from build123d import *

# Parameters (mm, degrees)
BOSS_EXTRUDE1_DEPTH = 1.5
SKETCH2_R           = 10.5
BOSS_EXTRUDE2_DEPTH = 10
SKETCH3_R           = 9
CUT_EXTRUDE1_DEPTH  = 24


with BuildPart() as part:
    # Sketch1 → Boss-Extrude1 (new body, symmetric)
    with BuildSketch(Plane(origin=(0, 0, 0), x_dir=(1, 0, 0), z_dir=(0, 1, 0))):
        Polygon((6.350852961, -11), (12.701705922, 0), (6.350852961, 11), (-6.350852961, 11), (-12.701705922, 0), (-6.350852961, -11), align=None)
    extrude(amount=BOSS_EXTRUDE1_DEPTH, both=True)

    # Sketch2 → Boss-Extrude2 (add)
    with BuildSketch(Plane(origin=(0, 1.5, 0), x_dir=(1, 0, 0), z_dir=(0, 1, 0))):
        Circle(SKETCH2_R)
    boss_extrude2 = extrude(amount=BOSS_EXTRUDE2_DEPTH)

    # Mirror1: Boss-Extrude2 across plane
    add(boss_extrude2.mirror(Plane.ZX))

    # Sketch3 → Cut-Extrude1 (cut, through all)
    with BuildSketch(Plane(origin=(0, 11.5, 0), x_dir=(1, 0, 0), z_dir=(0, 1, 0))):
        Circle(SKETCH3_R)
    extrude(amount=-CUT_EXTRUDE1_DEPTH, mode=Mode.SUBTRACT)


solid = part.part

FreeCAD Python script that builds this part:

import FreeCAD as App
import Part
import Sketcher

V = App.Vector
Q = App.Units.Quantity


def add_polygon(sketch, points):
    """Adds a closed chain of lines whose ends are joined by coincident constraints."""
    first, n = sketch.GeometryCount, len(points)
    for a, b in zip(points, points[1:] + points[:1]):
        sketch.addGeometry(Part.LineSegment(App.Vector(*a, 0), App.Vector(*b, 0)), False)
    for i in range(n):
        sketch.addConstraint(Sketcher.Constraint("Coincident", first + i, 2, first + (i + 1) % n, 1))

doc = App.newDocument("Part")
params = doc.addObject("Spreadsheet::Sheet", "Params")
for row, (alias, value) in enumerate([
    ("pad1_length", "3 mm"),
    ("sketch2_diameter", "21 mm"),
    ("pad2_length", "10 mm"),
    ("sketch3_diameter", "18 mm"),
], start=1):
    params.set(f"A{row}", alias)
    params.set(f"B{row}", "=" + value)
    params.setAlias(f"B{row}", alias)

body = doc.addObject("PartDesign::Body", "Body")

# Sketch on XZ plane
sketch1 = body.newObject("Sketcher::SketchObject", "Sketch")
sketch1.AttachmentSupport = (doc.getObject("XZ_Plane"), [""])
sketch1.MapMode = "FlatFace"
add_polygon(sketch1, [(6.350853, 11), (12.701706, 0), (6.350853, -11), (-6.350853, -11), (-12.701706, 0), (-6.350853, 11)])  # lines 0-5
sketch1.addConstraint(Sketcher.Constraint("Horizontal", 2))
sketch1.addConstraint(Sketcher.Constraint("Horizontal", 5))
sketch1.addConstraint(Sketcher.Constraint("Symmetric", 0, 2, 3, 2, -1, 1))
sketch1.addConstraint(Sketcher.Constraint("Symmetric", 1, 2, 4, 2, -1, 1))
sketch1.addConstraint(Sketcher.Constraint("PointOnObject", 0, 2, -1))
sketch1.addConstraint(Sketcher.Constraint("Parallel", 0, 3))
sketch1.addConstraint(Sketcher.Constraint("Vertical", 2, 2, 4, 2))
sketch1.addConstraint(Sketcher.Constraint("Angle", 0, Q("-60 deg")))
sketch1.addConstraint(Sketcher.Constraint("DistanceY", 1, 2, -1, 1, 11.0))
sketch1.addConstraint(Sketcher.Constraint("DistanceX", 2, 2, 2, 1, 12.701706))
pad1 = body.newObject("PartDesign::Pad", "Pad")
pad1.Profile = sketch1
pad1.setExpression("Length", "Params.pad1_length")
pad1.Midplane = True

# Sketch on XZ plane
sketch2 = body.newObject("Sketcher::SketchObject", "Sketch001")
sketch2.AttachmentSupport = (doc.getObject("XZ_Plane"), [""])
sketch2.MapMode = "FlatFace"
sketch2.AttachmentOffset = App.Placement(V(0, 0, -1.5), App.Rotation())
sketch2.addGeometry(Part.Circle(V(0, 0, 0), V(0, 0, 1), 10.5), False)
sketch2.addConstraint(Sketcher.Constraint("Coincident", 0, 3, -1, 1))
sketch2.addConstraint(Sketcher.Constraint("Diameter", 0, 21.0))
sketch2.setExpression("Constraints[1]", "Params.sketch2_diameter")
pad2 = body.newObject("PartDesign::Pad", "Pad001")
pad2.Profile = sketch2
pad2.setExpression("Length", "Params.pad2_length")
pad2.Reversed = True
doc.recompute()

mirrored = body.newObject("PartDesign::Mirrored", "Mirrored")
mirrored.Originals = [pad2]
mirrored.MirrorPlane = (doc.getObject("XZ_Plane"), [""])
body.Tip = mirrored

# Sketch on XZ plane
sketch3 = body.newObject("Sketcher::SketchObject", "Sketch002")
sketch3.AttachmentSupport = (doc.getObject("XZ_Plane"), [""])
sketch3.MapMode = "FlatFace"
sketch3.AttachmentOffset = App.Placement(V(0, 0, -11.5), App.Rotation())
sketch3.addGeometry(Part.Circle(V(0, 0, 0), V(0, 0, 1), 9), False)
sketch3.addConstraint(Sketcher.Constraint("Coincident", 0, 3, -1, 1))
sketch3.addConstraint(Sketcher.Constraint("Diameter", 0, 18.0))
sketch3.setExpression("Constraints[1]", "Params.sketch3_diameter")
pocket1 = body.newObject("PartDesign::Pocket", "Pocket")
pocket1.Profile = sketch3
pocket1.Type = "ThroughAll"
pocket1.Reversed = True

doc.recompute()
